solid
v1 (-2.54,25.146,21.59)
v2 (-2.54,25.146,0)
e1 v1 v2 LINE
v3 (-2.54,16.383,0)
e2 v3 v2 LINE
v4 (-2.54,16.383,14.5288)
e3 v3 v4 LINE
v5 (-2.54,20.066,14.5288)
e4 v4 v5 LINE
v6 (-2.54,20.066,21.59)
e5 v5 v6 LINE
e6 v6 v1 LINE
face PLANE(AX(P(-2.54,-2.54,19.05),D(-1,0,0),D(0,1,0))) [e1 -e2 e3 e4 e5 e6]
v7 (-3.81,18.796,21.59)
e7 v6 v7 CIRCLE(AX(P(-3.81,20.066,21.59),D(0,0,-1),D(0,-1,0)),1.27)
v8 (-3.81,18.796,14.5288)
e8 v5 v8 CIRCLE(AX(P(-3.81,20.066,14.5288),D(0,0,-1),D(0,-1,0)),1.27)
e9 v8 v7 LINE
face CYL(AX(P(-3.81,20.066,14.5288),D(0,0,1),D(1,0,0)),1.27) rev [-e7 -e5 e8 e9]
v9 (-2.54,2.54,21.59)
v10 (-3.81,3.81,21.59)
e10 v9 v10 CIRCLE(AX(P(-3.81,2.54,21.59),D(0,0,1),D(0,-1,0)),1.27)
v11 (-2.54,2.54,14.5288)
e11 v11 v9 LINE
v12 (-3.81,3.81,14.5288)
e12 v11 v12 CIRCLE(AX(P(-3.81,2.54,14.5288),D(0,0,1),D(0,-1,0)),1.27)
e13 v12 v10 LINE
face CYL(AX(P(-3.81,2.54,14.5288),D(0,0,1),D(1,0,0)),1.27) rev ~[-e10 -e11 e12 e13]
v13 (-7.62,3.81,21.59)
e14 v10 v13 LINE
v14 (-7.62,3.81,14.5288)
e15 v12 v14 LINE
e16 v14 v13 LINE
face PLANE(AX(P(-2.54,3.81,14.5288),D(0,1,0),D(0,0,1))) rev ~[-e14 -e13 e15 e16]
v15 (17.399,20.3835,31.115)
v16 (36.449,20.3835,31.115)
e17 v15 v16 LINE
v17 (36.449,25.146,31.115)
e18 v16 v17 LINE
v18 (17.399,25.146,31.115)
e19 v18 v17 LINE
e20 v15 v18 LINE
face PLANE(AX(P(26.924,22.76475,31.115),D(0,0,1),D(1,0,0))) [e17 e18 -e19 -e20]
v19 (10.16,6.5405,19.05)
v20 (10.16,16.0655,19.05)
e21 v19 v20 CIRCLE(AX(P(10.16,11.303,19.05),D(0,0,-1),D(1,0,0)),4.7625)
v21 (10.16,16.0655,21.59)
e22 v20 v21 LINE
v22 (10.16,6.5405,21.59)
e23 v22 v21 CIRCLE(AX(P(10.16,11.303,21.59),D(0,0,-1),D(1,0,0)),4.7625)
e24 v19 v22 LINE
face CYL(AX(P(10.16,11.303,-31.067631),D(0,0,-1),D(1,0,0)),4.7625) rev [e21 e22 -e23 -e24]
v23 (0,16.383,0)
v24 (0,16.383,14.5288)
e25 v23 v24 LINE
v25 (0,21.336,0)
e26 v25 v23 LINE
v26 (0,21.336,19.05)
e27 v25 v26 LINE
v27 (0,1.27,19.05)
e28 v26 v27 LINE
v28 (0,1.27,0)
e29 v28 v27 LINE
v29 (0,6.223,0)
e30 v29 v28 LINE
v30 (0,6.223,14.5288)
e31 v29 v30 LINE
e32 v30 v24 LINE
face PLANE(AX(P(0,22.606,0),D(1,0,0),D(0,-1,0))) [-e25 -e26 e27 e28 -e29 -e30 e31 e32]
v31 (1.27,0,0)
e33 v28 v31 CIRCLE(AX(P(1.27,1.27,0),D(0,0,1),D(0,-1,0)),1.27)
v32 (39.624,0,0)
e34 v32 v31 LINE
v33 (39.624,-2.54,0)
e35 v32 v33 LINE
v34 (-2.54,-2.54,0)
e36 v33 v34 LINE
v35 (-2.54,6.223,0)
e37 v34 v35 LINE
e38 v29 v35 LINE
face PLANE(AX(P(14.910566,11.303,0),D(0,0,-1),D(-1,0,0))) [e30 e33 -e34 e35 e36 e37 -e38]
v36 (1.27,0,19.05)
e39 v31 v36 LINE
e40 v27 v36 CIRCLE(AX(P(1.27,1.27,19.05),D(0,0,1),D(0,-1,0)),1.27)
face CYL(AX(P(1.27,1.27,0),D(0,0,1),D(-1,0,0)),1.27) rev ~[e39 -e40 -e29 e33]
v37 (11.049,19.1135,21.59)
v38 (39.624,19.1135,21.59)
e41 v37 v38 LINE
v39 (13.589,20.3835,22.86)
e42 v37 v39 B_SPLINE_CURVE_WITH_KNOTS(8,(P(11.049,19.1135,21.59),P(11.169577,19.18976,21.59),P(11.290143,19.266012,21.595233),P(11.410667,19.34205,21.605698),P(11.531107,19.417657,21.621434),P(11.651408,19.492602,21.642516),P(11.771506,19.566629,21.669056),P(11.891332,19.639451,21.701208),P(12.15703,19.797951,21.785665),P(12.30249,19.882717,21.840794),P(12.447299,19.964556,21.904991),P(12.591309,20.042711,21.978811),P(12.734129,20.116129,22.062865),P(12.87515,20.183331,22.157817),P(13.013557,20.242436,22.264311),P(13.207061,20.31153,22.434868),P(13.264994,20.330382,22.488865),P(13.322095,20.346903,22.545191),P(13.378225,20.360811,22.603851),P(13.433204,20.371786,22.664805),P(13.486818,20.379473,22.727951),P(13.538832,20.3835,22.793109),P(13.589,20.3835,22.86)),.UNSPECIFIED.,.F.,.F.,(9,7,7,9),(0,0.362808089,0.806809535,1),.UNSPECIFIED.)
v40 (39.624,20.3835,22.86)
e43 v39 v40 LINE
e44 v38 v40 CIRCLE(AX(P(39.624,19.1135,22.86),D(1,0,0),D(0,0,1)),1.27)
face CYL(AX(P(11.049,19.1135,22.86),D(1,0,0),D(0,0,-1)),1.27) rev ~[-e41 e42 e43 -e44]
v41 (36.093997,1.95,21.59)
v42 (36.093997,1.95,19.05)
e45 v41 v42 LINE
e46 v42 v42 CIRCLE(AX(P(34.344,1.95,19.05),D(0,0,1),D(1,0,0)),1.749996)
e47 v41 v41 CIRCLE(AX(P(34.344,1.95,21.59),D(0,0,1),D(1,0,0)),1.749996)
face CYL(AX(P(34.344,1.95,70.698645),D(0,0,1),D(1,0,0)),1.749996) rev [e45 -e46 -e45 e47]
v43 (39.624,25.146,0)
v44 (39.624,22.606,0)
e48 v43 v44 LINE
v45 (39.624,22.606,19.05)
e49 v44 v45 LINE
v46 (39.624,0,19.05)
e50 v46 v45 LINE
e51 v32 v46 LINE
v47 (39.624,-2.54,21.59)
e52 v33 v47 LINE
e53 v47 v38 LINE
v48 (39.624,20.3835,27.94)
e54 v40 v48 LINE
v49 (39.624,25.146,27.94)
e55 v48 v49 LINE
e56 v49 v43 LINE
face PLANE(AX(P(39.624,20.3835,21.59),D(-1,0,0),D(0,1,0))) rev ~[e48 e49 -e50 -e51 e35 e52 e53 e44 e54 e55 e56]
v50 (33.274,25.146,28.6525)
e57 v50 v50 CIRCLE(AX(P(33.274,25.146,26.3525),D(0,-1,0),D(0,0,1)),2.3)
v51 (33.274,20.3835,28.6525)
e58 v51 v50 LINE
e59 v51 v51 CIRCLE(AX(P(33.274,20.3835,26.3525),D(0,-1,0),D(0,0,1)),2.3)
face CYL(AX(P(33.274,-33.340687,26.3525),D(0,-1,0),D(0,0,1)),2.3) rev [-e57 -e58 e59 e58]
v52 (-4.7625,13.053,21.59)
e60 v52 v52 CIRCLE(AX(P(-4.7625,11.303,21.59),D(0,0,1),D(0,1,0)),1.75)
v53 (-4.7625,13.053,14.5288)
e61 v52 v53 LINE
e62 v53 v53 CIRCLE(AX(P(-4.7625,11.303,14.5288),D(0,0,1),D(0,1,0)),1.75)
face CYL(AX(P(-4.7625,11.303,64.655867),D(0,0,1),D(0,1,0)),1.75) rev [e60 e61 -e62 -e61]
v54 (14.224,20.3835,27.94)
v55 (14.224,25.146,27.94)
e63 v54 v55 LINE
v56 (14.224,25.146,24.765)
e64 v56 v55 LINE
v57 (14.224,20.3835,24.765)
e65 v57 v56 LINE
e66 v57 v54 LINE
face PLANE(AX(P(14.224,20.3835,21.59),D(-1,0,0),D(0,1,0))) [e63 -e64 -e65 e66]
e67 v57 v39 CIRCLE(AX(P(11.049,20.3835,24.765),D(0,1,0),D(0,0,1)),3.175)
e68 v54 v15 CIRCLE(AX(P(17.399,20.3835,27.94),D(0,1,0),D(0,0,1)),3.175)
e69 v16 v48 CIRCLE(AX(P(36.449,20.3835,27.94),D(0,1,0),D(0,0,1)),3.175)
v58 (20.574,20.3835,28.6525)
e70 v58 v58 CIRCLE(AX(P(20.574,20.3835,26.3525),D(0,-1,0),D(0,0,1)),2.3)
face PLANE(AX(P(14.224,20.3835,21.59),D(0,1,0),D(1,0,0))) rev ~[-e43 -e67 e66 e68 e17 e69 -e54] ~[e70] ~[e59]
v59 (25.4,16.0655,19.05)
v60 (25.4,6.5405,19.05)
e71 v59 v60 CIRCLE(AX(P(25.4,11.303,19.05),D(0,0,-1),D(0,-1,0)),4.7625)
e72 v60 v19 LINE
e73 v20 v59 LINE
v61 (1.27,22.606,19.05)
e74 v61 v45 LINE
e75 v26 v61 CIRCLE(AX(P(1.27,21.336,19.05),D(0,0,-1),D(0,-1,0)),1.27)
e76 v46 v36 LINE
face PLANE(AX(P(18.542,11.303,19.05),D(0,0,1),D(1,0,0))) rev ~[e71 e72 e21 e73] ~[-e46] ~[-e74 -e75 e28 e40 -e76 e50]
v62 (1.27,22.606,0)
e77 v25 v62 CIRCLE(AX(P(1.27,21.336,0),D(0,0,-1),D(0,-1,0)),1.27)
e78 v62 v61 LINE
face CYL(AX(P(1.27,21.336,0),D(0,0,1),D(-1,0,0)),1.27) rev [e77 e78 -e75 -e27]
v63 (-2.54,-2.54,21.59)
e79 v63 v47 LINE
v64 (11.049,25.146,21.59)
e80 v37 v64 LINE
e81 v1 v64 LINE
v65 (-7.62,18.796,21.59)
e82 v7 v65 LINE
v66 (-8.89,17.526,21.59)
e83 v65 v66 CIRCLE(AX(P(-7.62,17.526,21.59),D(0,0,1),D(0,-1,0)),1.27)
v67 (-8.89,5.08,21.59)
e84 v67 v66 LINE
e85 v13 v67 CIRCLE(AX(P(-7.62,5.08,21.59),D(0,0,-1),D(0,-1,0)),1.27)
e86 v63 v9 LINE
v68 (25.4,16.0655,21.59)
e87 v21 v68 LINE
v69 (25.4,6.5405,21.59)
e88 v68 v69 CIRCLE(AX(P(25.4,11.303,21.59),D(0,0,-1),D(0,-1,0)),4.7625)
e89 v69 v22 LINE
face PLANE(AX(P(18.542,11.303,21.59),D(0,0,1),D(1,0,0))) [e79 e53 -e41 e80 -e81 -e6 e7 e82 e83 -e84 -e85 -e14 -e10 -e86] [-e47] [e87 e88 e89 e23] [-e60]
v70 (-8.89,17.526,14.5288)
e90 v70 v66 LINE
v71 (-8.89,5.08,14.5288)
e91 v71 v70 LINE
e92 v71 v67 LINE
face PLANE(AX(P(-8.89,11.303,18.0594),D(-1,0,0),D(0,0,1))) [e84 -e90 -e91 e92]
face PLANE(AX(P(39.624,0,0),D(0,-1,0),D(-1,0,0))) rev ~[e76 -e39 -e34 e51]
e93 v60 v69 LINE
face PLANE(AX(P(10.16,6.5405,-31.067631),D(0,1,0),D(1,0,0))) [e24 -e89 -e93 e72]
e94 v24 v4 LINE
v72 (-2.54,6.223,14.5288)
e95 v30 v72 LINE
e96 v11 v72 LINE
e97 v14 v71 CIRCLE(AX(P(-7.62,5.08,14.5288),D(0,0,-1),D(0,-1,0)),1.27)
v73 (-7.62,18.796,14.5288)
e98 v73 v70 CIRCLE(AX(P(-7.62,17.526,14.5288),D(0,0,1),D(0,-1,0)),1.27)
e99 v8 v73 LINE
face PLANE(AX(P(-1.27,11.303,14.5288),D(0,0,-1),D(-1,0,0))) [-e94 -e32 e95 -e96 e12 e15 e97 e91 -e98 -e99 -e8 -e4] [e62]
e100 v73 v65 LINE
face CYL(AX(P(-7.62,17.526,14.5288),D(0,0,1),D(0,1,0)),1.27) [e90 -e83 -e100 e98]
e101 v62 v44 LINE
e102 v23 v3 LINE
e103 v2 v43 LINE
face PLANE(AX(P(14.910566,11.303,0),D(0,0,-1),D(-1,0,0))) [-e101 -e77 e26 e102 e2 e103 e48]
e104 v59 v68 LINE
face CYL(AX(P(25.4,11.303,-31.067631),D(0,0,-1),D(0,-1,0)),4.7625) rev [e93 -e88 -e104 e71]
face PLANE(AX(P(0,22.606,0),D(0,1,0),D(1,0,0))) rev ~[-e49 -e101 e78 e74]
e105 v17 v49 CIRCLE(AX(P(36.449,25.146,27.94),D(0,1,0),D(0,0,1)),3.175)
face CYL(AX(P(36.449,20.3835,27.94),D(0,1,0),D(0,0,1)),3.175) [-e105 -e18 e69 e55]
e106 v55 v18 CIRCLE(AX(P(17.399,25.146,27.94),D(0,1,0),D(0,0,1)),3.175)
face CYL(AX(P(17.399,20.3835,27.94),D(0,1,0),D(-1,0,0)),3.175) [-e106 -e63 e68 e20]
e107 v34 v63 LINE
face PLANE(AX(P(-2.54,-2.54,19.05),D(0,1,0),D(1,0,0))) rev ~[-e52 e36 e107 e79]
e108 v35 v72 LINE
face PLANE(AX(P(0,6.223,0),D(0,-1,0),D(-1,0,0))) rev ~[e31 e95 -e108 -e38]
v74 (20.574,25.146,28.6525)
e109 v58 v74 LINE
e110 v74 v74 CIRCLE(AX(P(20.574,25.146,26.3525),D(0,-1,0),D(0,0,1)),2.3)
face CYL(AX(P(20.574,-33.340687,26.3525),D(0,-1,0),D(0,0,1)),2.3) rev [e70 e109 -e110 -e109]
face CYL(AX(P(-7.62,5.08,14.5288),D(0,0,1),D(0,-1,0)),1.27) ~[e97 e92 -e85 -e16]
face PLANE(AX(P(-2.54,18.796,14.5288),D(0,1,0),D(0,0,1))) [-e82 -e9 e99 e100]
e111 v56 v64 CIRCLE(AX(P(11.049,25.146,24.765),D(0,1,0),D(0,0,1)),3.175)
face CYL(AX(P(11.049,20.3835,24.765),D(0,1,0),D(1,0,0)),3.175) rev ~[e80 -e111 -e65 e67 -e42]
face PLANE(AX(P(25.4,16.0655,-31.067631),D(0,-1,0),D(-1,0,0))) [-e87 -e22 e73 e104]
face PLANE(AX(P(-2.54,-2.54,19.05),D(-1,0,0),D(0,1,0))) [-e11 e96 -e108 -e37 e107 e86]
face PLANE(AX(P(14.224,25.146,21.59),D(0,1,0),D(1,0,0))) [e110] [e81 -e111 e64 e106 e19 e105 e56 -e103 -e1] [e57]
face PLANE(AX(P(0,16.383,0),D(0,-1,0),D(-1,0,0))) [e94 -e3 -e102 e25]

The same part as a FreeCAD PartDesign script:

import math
import FreeCAD as App
import Part
import Sketcher
from FreeCAD import Vector
Q = App.Units.Quantity


def edges_at(feature, points):
    """Names of the edges that pass closest to the given points."""
    edges = feature.Shape.Edges
    near = lambda p: min(range(len(edges)), key=lambda i: edges[i].distToShape(Part.Vertex(*p))[0])
    return sorted({f"Edge{near(p) + 1}" for p in points})

doc = App.newDocument("Part")
body = doc.addObject("PartDesign::Body", "Body")

sketch1 = body.newObject("Sketcher::SketchObject", "Sketch")
sketch1.AttachmentSupport = (doc.getObject("XY_Plane"), [""])
sketch1.MapMode = "FlatFace"
sketch1.addGeometry([
    Part.LineSegment(Vector(39.6, 25.1, 0), Vector(-2.5, 25.1, 0)),
    Part.LineSegment(Vector(-2.5, 25.1, 0), Vector(-2.5, -2.5, 0)),
    Part.LineSegment(Vector(-2.5, -2.5, 0), Vector(39.6, -2.5, 0)),
    Part.LineSegment(Vector(39.6, -2.5, 0), Vector(39.6, 0, 0)),
    Part.LineSegment(Vector(39.6, 0, 0), Vector(0, 0, 0)),
    Part.LineSegment(Vector(0, 0, 0), Vector(0, 22.6, 0)),
    Part.LineSegment(Vector(0, 22.6, 0), Vector(39.6, 22.6, 0)),
    Part.LineSegment(Vector(39.6, 22.6, 0), Vector(39.6, 25.1, 0)),
], False)
sketch1.addConstraint([
    Sketcher.Constraint("Coincident", 0, 2, 1, 1),
    Sketcher.Constraint("Coincident", 1, 2, 2, 1),
    Sketcher.Constraint("Coincident", 2, 2, 3, 1),
    Sketcher.Constraint("Coincident", 3, 2, 4, 1),
    Sketcher.Constraint("Coincident", 4, 2, 5, 1),
    Sketcher.Constraint("Coincident", 5, 2, 6, 1),
    Sketcher.Constraint("Coincident", 6, 2, 7, 1),
    Sketcher.Constraint("Coincident", 7, 2, 0, 1),
    Sketcher.Constraint("Horizontal", 0),
    Sketcher.Constraint("Vertical", 1),
    Sketcher.Constraint("Horizontal", 2),
    Sketcher.Constraint("Vertical", 3),
    Sketcher.Constraint("Horizontal", 4),
    Sketcher.Constraint("Vertical", 5),
    Sketcher.Constraint("Horizontal", 6),
    Sketcher.Constraint("Vertical", 7),
    Sketcher.Constraint("Coincident", 4, 2, -1, 1),
    Sketcher.Constraint("Vertical", 3, 2, 6, 2),
    Sketcher.Constraint("Equal", 3, 7),
    Sketcher.Constraint("DistanceY", 3, 1, 3, 2, Q("0.1 in")),
    Sketcher.Constraint("DistanceX", 0, 2, 0, 1, Q("1.66 in")),
    Sketcher.Constraint("DistanceX", 4, 2, 4, 1, Q("1.56 in")),
    Sketcher.Constraint("DistanceY", 1, 2, 1, 1, Q("1.09 in")),
])
pad1 = body.newObject("PartDesign::Pad", "Pad")
pad1.Profile = sketch1
pad1.Length = Q("0.75 in")

sketch2 = body.newObject("Sketcher::SketchObject", "Sketch001")
sketch2.AttachmentSupport = (doc.getObject("XY_Plane"), [""])
sketch2.MapMode = "FlatFace"
sketch2.AttachmentOffset = App.Placement(Vector(0, 0, 0.75 * 25.4), App.Rotation())
sketch2.addGeometry([
    Part.LineSegment(Vector(-3, 25, 0), Vector(-3, -3, 0)),
    Part.LineSegment(Vector(-3, -3, 0), Vector(40, -3, 0)),
    Part.LineSegment(Vector(40, -3, 0), Vector(40, 25, 0)),
    Part.LineSegment(Vector(40, 25, 0), Vector(-3, 25, 0)),
], False)
sketch2.addConstraint([
    Sketcher.Constraint("Coincident", 0, 2, 1, 1),
    Sketcher.Constraint("Coincident", 1, 2, 2, 1),
    Sketcher.Constraint("Coincident", 2, 2, 3, 1),
    Sketcher.Constraint("Coincident", 3, 2, 0, 1),
    Sketcher.Constraint("Vertical", 0),
    Sketcher.Constraint("Horizontal", 1),
    Sketcher.Constraint("Vertical", 2),
    Sketcher.Constraint("Horizontal", 3),
    Sketcher.Constraint("DistanceX", 1, 1, 1, 2, Q("1.66 in")),
    Sketcher.Constraint("DistanceY", 0, 2, 0, 1, Q("1.09 in")),
    Sketcher.Constraint("DistanceX", 0, 2, -1, 1, Q("0.1 in")),
    Sketcher.Constraint("DistanceY", 0, 2, -1, 1, Q("0.1 in")),
])
pad2 = body.newObject("PartDesign::Pad", "Pad001")
pad2.Profile = sketch2
pad2.Length = Q("0.1 in")

sketch3 = body.newObject("Sketcher::SketchObject", "Sketch002")
sketch3.AttachmentSupport = (doc.getObject("YZ_Plane"), [""])
sketch3.MapMode = "FlatFace"
sketch3.AttachmentOffset = App.Placement(Vector(0, 0, -0.1 * 25.4), App.Rotation())
sketch3.addGeometry([
    Part.LineSegment(Vector(19, 15, 0), Vector(4, 15, 0)),
    Part.LineSegment(Vector(4, 15, 0), Vector(4, 22, 0)),
    Part.LineSegment(Vector(4, 22, 0), Vector(19, 22, 0)),
    Part.LineSegment(Vector(19, 22, 0), Vector(19, 15, 0)),
], False)
sketch3.addConstraint([
    Sketcher.Constraint("Coincident", 0, 2, 1, 1),
    Sketcher.Constraint("Coincident", 1, 2, 2, 1),
    Sketcher.Constraint("Coincident", 2, 2, 3, 1),
    Sketcher.Constraint("Coincident", 3, 2, 0, 1),
    Sketcher.Constraint("Horizontal", 0),
    Sketcher.Constraint("Vertical", 1),
    Sketcher.Constraint("Horizontal", 2),
    Sketcher.Constraint("Vertical", 3),
    Sketcher.Constraint("DistanceX", 0, 2, 0, 1, Q("0.59 in")),
    Sketcher.Constraint("DistanceY", 1, 1, 1, 2, Q("0.278 in")),
    Sketcher.Constraint("DistanceX", -1, 1, 0, 2, Q("0.15 in")),
    Sketcher.Constraint("DistanceY", -1, 1, 1, 2, Q("0.85 in")),
])
pad3 = body.newObject("PartDesign::Pad", "Pad002")
pad3.Profile = sketch3
pad3.Length = Q("0.25 in")
pad3.Reversed = True

sketch4 = body.newObject("Sketcher::SketchObject", "Sketch003")
sketch4.AttachmentSupport = (doc.getObject("XY_Plane"), [""])
sketch4.MapMode = "FlatFace"
sketch4.AttachmentOffset = App.Placement(Vector(0, 0, 0.572 * 25.4), App.Rotation())
sketch4.addGeometry(Part.Circle(Vector(-4.8, 11.3, 0), Vector(0, 0, 1), 1.8), False)
sketch4.addConstraint([
    Sketcher.Constraint("Diameter", 0, 3.5),
    Sketcher.Constraint("DistanceX", 0, 3, -1, 1, Q("0.1875 in")),
    Sketcher.Constraint("DistanceY", -1, 1, 0, 3, Q("0.445 in")),
])
pocket1 = body.newObject("PartDesign::Pocket", "Pocket")
pocket1.Profile = sketch4
pocket1.Type = "ThroughAll"
pocket1.Midplane = True
doc.recompute()

fillet = body.newObject("PartDesign::Fillet", "Fillet")
fillet.Base = (pocket1, edges_at(pocket1, [
    (-2.54, 18.796, 18.059),
    (-2.54, 3.81, 18.059),
    (-8.89, 18.796, 18.059),
    (-8.89, 3.81, 18.059),
]))
fillet.Radius = Q("0.05 in")

sketch5 = body.newObject("Sketcher::SketchObject", "Sketch004")
sketch5.AttachmentSupport = (doc.getObject("XY_Plane"), [""])
sketch5.MapMode = "FlatFace"
sketch5.AttachmentOffset = App.Placement(Vector(0, 0, 0.85 * 25.4), App.Rotation())
sketch5.addGeometry([
    Part.ArcOfCircle(Part.Circle(Vector(10.2, 11.3, 0), Vector(0, 0, 1), 4.8), math.radians(90), math.radians(270)),
    Part.LineSegment(Vector(10.2, 6.5, 0), Vector(25.4, 6.5, 0)),
    Part.ArcOfCircle(Part.Circle(Vector(25.4, 11.3, 0), Vector(0, 0, 1), 4.8), math.radians(-90), math.radians(90)),
    Part.LineSegment(Vector(25.4, 16.1, 0), Vector(10.2, 16.1, 0)),
], False)
sketch5.addConstraint([
    Sketcher.Constraint("Tangent", 0, 2, 1, 1),
    Sketcher.Constraint("Tangent", 1, 2, 2, 1),
    Sketcher.Constraint("Tangent", 2, 2, 3, 1),
    Sketcher.Constraint("Tangent", 3, 2, 0, 1),
    Sketcher.Constraint("Horizontal", 1),
    Sketcher.Constraint("Horizontal", 3),
    Sketcher.Constraint("DistanceX", 1, 1, 1, 2, Q("0.6 in")),
    Sketcher.Constraint("DistanceX", -1, 1, 2, 3, Q("1 in")),
    Sketcher.Constraint("Radius", 0, Q("0.1875 in")),
    Sketcher.Constraint("DistanceY", -1, 1, 0, 3, Q("0.445 in")),
])
pocket2 = body.newObject("PartDesign::Pocket", "Pocket001")
pocket2.Profile = sketch5
pocket2.Type = "ThroughAll"
pocket2.Midplane = True

sketch6 = body.newObject("Sketcher::SketchObject", "Sketch005")
sketch6.AttachmentSupport = (doc.getObject("XY_Plane"), [""])
sketch6.MapMode = "FlatFace"
sketch6.AttachmentOffset = App.Placement(Vector(0, 0, 0.85 * 25.4), App.Rotation())
sketch6.addGeometry([
    Part.LineSegment(Vector(14.2, 25.1, 0), Vector(14.2, 20.4, 0)),
    Part.LineSegment(Vector(14.2, 20.4, 0), Vector(39.6, 20.4, 0)),
    Part.LineSegment(Vector(39.6, 20.4, 0), Vector(39.6, 25.1, 0)),
    Part.LineSegment(Vector(39.6, 25.1, 0), Vector(14.2, 25.1, 0)),
], False)
sketch6.addConstraint([
    Sketcher.Constraint("Coincident", 0, 2, 1, 1),
    Sketcher.Constraint("Coincident", 1, 2, 2, 1),
    Sketcher.Constraint("Coincident", 2, 2, 3, 1),
    Sketcher.Constraint("Coincident", 3, 2, 0, 1),
    Sketcher.Constraint("Vertical", 0),
    Sketcher.Constraint("Horizontal", 1),
    Sketcher.Constraint("Vertical", 2),
    Sketcher.Constraint("Horizontal", 3),
    Sketcher.Constraint("DistanceX", 1, 1, 1, 2, Q("1 in")),
    Sketcher.Constraint("DistanceY", 0, 2, 0, 1, Q("0.1875 in")),
    Sketcher.Constraint("DistanceX", -1, 1, 0, 2, Q("0.56 in")),
    Sketcher.Constraint("DistanceY", -1, 1, 2, 2, Q("0.99 in")),
])
pad4 = body.newObject("PartDesign::Pad", "Pad003")
pad4.Profile = sketch6
pad4.Length = Q("0.375 in")
doc.recompute()

fillet2 = body.newObject("PartDesign::Fillet", "Fillet001")
fillet2.Base = (pad4, edges_at(pad4, [(14.224, 22.765, 21.59), (14.224, 22.765, 31.115), (39.624, 22.765, 31.115)]))
fillet2.Radius = Q("0.125 in")
doc.recompute()

fillet3 = body.newObject("PartDesign::Fillet", "Fillet002")
fillet3.Base = (fillet2, edges_at(fillet2, [(25.337, 20.384, 21.59)]))
fillet3.Radius = Q("0.05 in")
doc.recompute()

fillet4 = body.newObject("PartDesign::Fillet", "Fillet003")
fillet4.Base = (fillet3, edges_at(fillet3, [(0, 0, 9.525), (0, 22.606, 9.525)]))
fillet4.Radius = Q("0.05 in")

sketch7 = body.newObject("Sketcher::SketchObject", "Sketch006")
sketch7.AttachmentSupport = (doc.getObject("XZ_Plane"), [""])
sketch7.MapMode = "FlatFace"
sketch7.AttachmentOffset = App.Placement(Vector(0, 0, -0.99 * 25.4), App.Rotation())
sketch7.addGeometry([
    Part.Circle(Vector(20.6, 26.4, 0), Vector(0, 0, 1), 2.3),
    Part.Circle(Vector(33.3, 26.4, 0), Vector(0, 0, 1), 2.3),
], False)
sketch7.addConstraint([
    Sketcher.Constraint("Equal", 0, 1),
    Sketcher.Constraint("Horizontal", 0, 3, 1, 3),
    Sketcher.Constraint("DistanceX", 0, 3, 1, 3, Q("0.5 in")),
    Sketcher.Constraint("Diameter", 0, 4.6),
    Sketcher.Constraint("DistanceX", -1, 1, 0, 3, Q("0.81 in")),
    Sketcher.Constraint("DistanceY", -1, 1, 0, 3, Q("1.0375 in")),
])
pocket3 = body.newObject("PartDesign::Pocket", "Pocket002")
pocket3.Profile = sketch7
pocket3.Type = "ThroughAll"
pocket3.Midplane = True

sketch8 = body.newObject("Sketcher::SketchObject", "Sketch007")
sketch8.AttachmentSupport = (doc.getObject("XY_Plane"), [""])
sketch8.MapMode = "FlatFace"
sketch8.addGeometry([
    Part.LineSegment(Vector(0, 16.4, 0), Vector(0, 6.2, 0)),
    Part.LineSegment(Vector(0, 6.2, 0), Vector(-2.5, 6.2, 0)),
    Part.LineSegment(Vector(-2.5, 6.2, 0), Vector(-2.5, 16.4, 0)),
    Part.LineSegment(Vector(-2.5, 16.4, 0), Vector(0, 16.4, 0)),
], False)
sketch8.addConstraint([
    Sketcher.Constraint("Coincident", 0, 2, 1, 1),
    Sketcher.Constraint("Coincident", 1, 2, 2, 1),
    Sketcher.Constraint("Coincident", 2, 2, 3, 1),
    Sketcher.Constraint("Coincident", 3, 2, 0, 1),
    Sketcher.Constraint("Vertical", 0),
    Sketcher.Constraint("Horizontal", 1),
    Sketcher.Constraint("Vertical", 2),
    Sketcher.Constraint("Horizontal", 3),
    Sketcher.Constraint("PointOnObject", 0, 2, -2),
    Sketcher.Constraint("DistanceX", 1, 2, 1, 1, Q("0.1 in")),
    Sketcher.Constraint("DistanceY", 0, 2, 0, 1, Q("0.4 in")),
    Sketcher.Constraint("DistanceY", -1, 1, 0, 2, Q("0.245 in")),
])
pocket4 = body.newObject("PartDesign::Pocket", "Pocket003")
pocket4.Profile = sketch8
pocket4.Length = Q("0.572 in")
pocket4.Reversed = True

sketch9 = body.newObject("Sketcher::SketchObject", "Sketch008")
sketch9.AttachmentSupport = (doc.getObject("XY_Plane"), [""])
sketch9.MapMode = "FlatFace"
sketch9.AttachmentOffset = App.Placement(Vector(0, 0, 0.75 * 25.4), App.Rotation())
sketch9.addGeometry(Part.Circle(Vector(34.3, 1.9, 0), Vector(0, 0, 1), 1.7), False)
sketch9.addConstraint([
    Sketcher.Constraint("Diameter", 0, 3.499993),
    Sketcher.Constraint("DistanceX", -1, 1, 0, 3, 34.344),
    Sketcher.Constraint("DistanceY", -1, 1, 0, 3, 1.95),
])
pocket5 = body.newObject("PartDesign::Pocket", "Pocket004")
pocket5.Profile = sketch9
pocket5.Type = "ThroughAll"
pocket5.Midplane = True

doc.recompute()
